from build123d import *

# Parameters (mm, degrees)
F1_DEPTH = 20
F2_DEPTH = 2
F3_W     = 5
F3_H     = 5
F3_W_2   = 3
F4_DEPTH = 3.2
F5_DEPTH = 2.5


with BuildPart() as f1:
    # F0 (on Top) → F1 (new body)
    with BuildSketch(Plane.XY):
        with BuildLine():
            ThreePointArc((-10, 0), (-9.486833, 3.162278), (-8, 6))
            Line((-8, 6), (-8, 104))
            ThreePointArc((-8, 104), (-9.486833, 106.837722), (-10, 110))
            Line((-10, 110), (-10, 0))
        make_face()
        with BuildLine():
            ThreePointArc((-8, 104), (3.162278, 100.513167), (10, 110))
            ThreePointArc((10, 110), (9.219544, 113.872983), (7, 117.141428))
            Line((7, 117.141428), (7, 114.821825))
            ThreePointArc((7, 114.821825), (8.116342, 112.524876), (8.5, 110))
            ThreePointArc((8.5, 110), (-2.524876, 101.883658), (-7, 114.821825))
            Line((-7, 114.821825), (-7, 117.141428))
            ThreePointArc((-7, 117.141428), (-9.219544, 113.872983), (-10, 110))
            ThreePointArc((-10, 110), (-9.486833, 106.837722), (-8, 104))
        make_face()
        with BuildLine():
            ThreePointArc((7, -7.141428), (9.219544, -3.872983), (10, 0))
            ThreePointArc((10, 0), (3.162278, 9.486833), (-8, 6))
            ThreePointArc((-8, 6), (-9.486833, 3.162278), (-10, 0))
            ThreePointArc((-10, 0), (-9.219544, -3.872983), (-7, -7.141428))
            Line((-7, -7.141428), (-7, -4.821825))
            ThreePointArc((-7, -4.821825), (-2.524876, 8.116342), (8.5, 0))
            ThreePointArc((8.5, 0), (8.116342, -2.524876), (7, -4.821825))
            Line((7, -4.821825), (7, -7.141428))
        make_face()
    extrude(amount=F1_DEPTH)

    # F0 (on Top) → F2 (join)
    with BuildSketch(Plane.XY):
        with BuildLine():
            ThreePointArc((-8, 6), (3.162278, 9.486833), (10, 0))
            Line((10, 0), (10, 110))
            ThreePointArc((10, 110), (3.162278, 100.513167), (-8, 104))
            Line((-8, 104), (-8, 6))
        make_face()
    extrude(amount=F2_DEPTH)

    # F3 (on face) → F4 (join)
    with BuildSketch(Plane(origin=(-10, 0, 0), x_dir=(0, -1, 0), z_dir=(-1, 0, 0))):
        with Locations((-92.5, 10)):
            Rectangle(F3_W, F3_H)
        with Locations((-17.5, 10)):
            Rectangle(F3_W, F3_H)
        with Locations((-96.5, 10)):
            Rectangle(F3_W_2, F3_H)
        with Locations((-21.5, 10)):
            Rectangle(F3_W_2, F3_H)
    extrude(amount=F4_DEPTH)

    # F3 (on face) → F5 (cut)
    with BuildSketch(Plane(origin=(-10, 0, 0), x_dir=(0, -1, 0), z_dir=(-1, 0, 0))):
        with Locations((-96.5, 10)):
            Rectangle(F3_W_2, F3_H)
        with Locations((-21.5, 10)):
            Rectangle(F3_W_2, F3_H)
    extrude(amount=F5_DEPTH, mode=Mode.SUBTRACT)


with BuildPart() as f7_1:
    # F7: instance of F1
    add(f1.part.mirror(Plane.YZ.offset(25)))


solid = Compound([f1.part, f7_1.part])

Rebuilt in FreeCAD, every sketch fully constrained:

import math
import FreeCAD as App
import Part
import Sketcher
Q = App.Units.Quantity

doc = App.newDocument("Part")
params = doc.addObject("Spreadsheet::Sheet", "Params")
for row, (alias, value) in enumerate([
    ("sketch1_radius", "10 mm"),
    ("sketch1_radius2", "8.5 mm"),
    ("sketch1_height", "98 mm"),
    ("sketch1_height2", "110 mm"),
    ("pad1_length", "20 mm"),
    ("sketch2_radius", "10 mm"),
    ("sketch2_height", "110 mm"),
    ("sketch2_height2", "98 mm"),
    ("pad2_length", "2 mm"),
    ("sketch3_width", "8 mm"),
    ("sketch3_height", "5 mm"),
    ("pad3_length", "3.2 mm"),
    ("sketch4_width", "3 mm"),
    ("sketch4_height", "5 mm"),
    ("pocket1_length", "2.5 mm"),
], start=1):
    params.set(f"A{row}", alias)
    params.set(f"B{row}", "=" + value)
    params.setAlias(f"B{row}", alias)

body = doc.addObject("PartDesign::Body", "Body")

sketch1 = doc.addObject("Sketcher::SketchObject", "Sketch")
body.addObject(sketch1)
sketch1.AttachmentSupport = (doc.XY_Plane, [""])
sketch1.MapMode = "FlatFace"
sketch1.addGeometry([
    Part.LineSegment(App.Vector(-8, 6, 0), App.Vector(-8, 104, 0)),
    Part.ArcOfCircle(Part.Circle(App.Vector(0, 110, 0), App.Vector(0, 0, 1), 10), math.radians(-143), math.radians(0)),
    Part.ArcOfCircle(Part.Circle(App.Vector(0, 110, 0), App.Vector(0, 0, 1), 10), math.radians(0), math.radians(46)),
    Part.LineSegment(App.Vector(7, 117.1, 0), App.Vector(7, 114.8, 0)),
    Part.ArcOfCircle(Part.Circle(App.Vector(0, 110, 0), App.Vector(0, 0, 1), 8.5), math.radians(0), math.radians(35)),
    Part.ArcOfCircle(Part.Circle(App.Vector(0, 110, 0), App.Vector(0, 0, 1), 8.5), math.radians(145), math.radians(360)),
    Part.LineSegment(App.Vector(-7, 114.8, 0), App.Vector(-7, 117.1, 0)),
    Part.ArcOfCircle(Part.Circle(App.Vector(0, 110, 0), App.Vector(0, 0, 1), 10), math.radians(134), math.radians(180)),
    Part.LineSegment(App.Vector(-10, 110, 0), App.Vector(-10, 0, 0)),
    Part.ArcOfCircle(Part.Circle(App.Vector(0, 0, 0), App.Vector(0, 0, 1), 10), math.radians(-180), math.radians(-134)),
    Part.LineSegment(App.Vector(-7, -7.1, 0), App.Vector(-7, -4.8, 0)),
    Part.ArcOfCircle(Part.Circle(App.Vector(0, 0, 0), App.Vector(0, 0, 1), 8.5), math.radians(0), math.radians(215)),
    Part.ArcOfCircle(Part.Circle(App.Vector(0, 0, 0), App.Vector(0, 0, 1), 8.5), math.radians(-35), math.radians(0)),
    Part.LineSegment(App.Vector(7, -4.8, 0), App.Vector(7, -7.1, 0)),
    Part.ArcOfCircle(Part.Circle(App.Vector(0, 0, 0), App.Vector(0, 0, 1), 10), math.radians(-46), math.radians(0)),
    Part.ArcOfCircle(Part.Circle(App.Vector(0, 0, 0), App.Vector(0, 0, 1), 10), math.radians(0), math.radians(143)),
], False)
sketch1.addConstraint([
    Sketcher.Constraint("Coincident", 0, 2, 1, 1),
    Sketcher.Constraint("Tangent", 1, 2, 2, 1),
    Sketcher.Constraint("Coincident", 2, 2, 3, 1),
    Sketcher.Constraint("Coincident", 3, 2, 4, 2),
    Sketcher.Constraint("Tangent", 4, 1, 5, 2),
    Sketcher.Constraint("Coincident", 5, 1, 6, 1),
    Sketcher.Constraint("Coincident", 6, 2, 7, 1),
    Sketcher.Constraint("Tangent", 7, 2, 8, 1),
    Sketcher.Constraint("Tangent", 8, 2, 9, 1),
    Sketcher.Constraint("Coincident", 9, 2, 10, 1),
    Sketcher.Constraint("Coincident", 10, 2, 11, 2),
    Sketcher.Constraint("Tangent", 11, 1, 12, 2),
    Sketcher.Constraint("Coincident", 12, 1, 13, 1),
    Sketcher.Constraint("Coincident", 13, 2, 14, 1),
    Sketcher.Constraint("Tangent", 14, 2, 15, 1),
    Sketcher.Constraint("Coincident", 15, 2, 0, 1),
    Sketcher.Constraint("Vertical", 0),
    Sketcher.Constraint("Vertical", 3),
    Sketcher.Constraint("Vertical", 6),
    Sketcher.Constraint("Vertical", 8),
    Sketcher.Constraint("Vertical", 10),
    Sketcher.Constraint("Vertical", 13),
    Sketcher.Constraint("Coincident", 9, 3, -1, 1),
    Sketcher.Constraint("Coincident", 11, 3, -1, 1),
    Sketcher.Constraint("Coincident", 14, 3, -1, 1),
    Sketcher.Constraint("Coincident", 5, 3, 1, 3),
    Sketcher.Constraint("Coincident", 7, 3, 1, 3),
    Sketcher.Constraint("Equal", 2, 7),
    Sketcher.Constraint("Equal", 7, 9),
    Sketcher.Constraint("Equal", 5, 11),
    Sketcher.Constraint("Equal", 4, 12),
    Sketcher.Constraint("Equal", 9, 14),
    Sketcher.Constraint("Equal", 1, 15),
    Sketcher.Constraint("Symmetric", 3, 2, 5, 1, -2),
    Sketcher.Constraint("Symmetric", 1, 2, 7, 2, -2),
    Sketcher.Constraint("PointOnObject", 11, 1, -1),
    Sketcher.Constraint("PointOnObject", 14, 2, -1),
    Sketcher.Constraint("Horizontal", 1, 2, 4, 1),
    Sketcher.Constraint("Horizontal", 10, 2, 12, 1),
    Sketcher.Constraint("Vertical", 6, 2, 9, 2),
    Sketcher.Constraint("Radius", 1, Q("10 mm")),
    Sketcher.Constraint("Radius", 5, Q("8.5 mm")),
    Sketcher.Constraint("DistanceY", 0, 1, 0, 2, Q("98 mm")),
    Sketcher.Constraint("DistanceY", 8, 2, 8, 1, Q("110 mm")),
    Sketcher.Constraint("DistanceX", -1, 1, 2, 2, Q("7 mm")),
])
sketch1.setExpression("Constraints[40]", "Params.sketch1_radius")
sketch1.setExpression("Constraints[41]", "Params.sketch1_radius2")
sketch1.setExpression("Constraints[42]", "Params.sketch1_height")
sketch1.setExpression("Constraints[43]", "Params.sketch1_height2")
pad1 = doc.addObject("PartDesign::Pad", "Pad")
body.addObject(pad1)
pad1.Profile = sketch1
pad1.setExpression("Length", "Params.pad1_length")

sketch2 = doc.addObject("Sketcher::SketchObject", "Sketch001")
body.addObject(sketch2)
sketch2.AttachmentSupport = (doc.XY_Plane, [""])
sketch2.MapMode = "FlatFace"
sketch2.addGeometry([
    Part.ArcOfCircle(Part.Circle(App.Vector(0, 0, 0), App.Vector(0, 0, 1), 10), math.radians(0), math.radians(143)),
    Part.LineSegment(App.Vector(10, 0, 0), App.Vector(10, 110, 0)),
    Part.ArcOfCircle(Part.Circle(App.Vector(0, 110, 0), App.Vector(0, 0, 1), 10), math.radians(-143), math.radians(0)),
    Part.LineSegment(App.Vector(-8, 104, 0), App.Vector(-8, 6, 0)),
], False)
sketch2.addConstraint([
    Sketcher.Constraint("Tangent", 0, 1, 1, 1),
    Sketcher.Constraint("Tangent", 1, 2, 2, 2),
    Sketcher.Constraint("Coincident", 2, 1, 3, 1),
    Sketcher.Constraint("Coincident", 3, 2, 0, 2),
    Sketcher.Constraint("Vertical", 1),
    Sketcher.Constraint("Vertical", 3),
    Sketcher.Constraint("Coincident", 0, 3, -1, 1),
    Sketcher.Constraint("Equal", 0, 2),
    Sketcher.Constraint("Radius", 0, Q("10 mm")),
    Sketcher.Constraint("DistanceY", 1, 1, 1, 2, Q("110 mm")),
    Sketcher.Constraint("DistanceY", 3, 2, 3, 1, Q("98 mm")),
])
sketch2.setExpression("Constraints[8]", "Params.sketch2_radius")
sketch2.setExpression("Constraints[9]", "Params.sketch2_height")
sketch2.setExpression("Constraints[10]", "Params.sketch2_height2")
pad2 = doc.addObject("PartDesign::Pad", "Pad001")
body.addObject(pad2)
pad2.Profile = sketch2
pad2.setExpression("Length", "Params.pad2_length")

sketch3 = doc.addObject("Sketcher::SketchObject", "Sketch002")
body.addObject(sketch3)
sketch3.AttachmentSupport = (doc.YZ_Plane, [""])
sketch3.MapMode = "FlatFace"
sketch3.AttachmentOffset = App.Placement(App.Vector(0, 0, -10), App.Rotation())
sketch3.addGeometry([
    Part.LineSegment(App.Vector(90, 8, 0), App.Vector(90, 12, 0)),
    Part.LineSegment(App.Vector(90, 12, 0), App.Vector(98, 12, 0)),
    Part.LineSegment(App.Vector(98, 12, 0), App.Vector(98, 8, 0)),
    Part.LineSegment(App.Vector(98, 8, 0), App.Vector(90, 8, 0)),
    Part.LineSegment(App.Vector(15, 8, 0), App.Vector(15, 12, 0)),
    Part.LineSegment(App.Vector(15, 12, 0), App.Vector(23, 12, 0)),
    Part.LineSegment(App.Vector(23, 12, 0), App.Vector(23, 8, 0)),
    Part.LineSegment(App.Vector(23, 8, 0), App.Vector(15, 8, 0)),
], False)
sketch3.addConstraint([
    Sketcher.Constraint("Coincident", 0, 2, 1, 1),
    Sketcher.Constraint("Coincident", 1, 2, 2, 1),
    Sketcher.Constraint("Coincident", 2, 2, 3, 1),
    Sketcher.Constraint("Coincident", 3, 2, 0, 1),
    Sketcher.Constraint("Coincident", 4, 2, 5, 1),
    Sketcher.Constraint("Coincident", 5, 2, 6, 1),
    Sketcher.Constraint("Coincident", 6, 2, 7, 1),
    Sketcher.Constraint("Coincident", 7, 2, 4, 1),
    Sketcher.Constraint("Vertical", 0),
    Sketcher.Constraint("Horizontal", 1),
    Sketcher.Constraint("Vertical", 2),
    Sketcher.Constraint("Horizontal", 3),
    Sketcher.Constraint("Vertical", 4),
    Sketcher.Constraint("Horizontal", 5),
    Sketcher.Constraint("Vertical", 6),
    Sketcher.Constraint("Horizontal", 7),
    Sketcher.Constraint("Horizontal", 1, 2, 4, 2),
    Sketcher.Constraint("Horizontal", 3, 2, 6, 2),
    Sketcher.Constraint("Equal", 3, 5),
    Sketcher.Constraint("DistanceX", 1, 1, 1, 2, Q("8 mm")),
    Sketcher.Constraint("DistanceY", 0, 1, 0, 2, Q("5 mm")),
    Sketcher.Constraint("DistanceX", -1, 1, 0, 2, Q("90 mm")),
    Sketcher.Constraint("DistanceX", -1, 1, 4, 2, Q("15 mm")),
    Sketcher.Constraint("DistanceY", -1, 1, 0, 2, Q("12.5 mm")),
])
sketch3.setExpression("Constraints[19]", "Params.sketch3_width")
sketch3.setExpression("Constraints[20]", "Params.sketch3_height")
pad3 = doc.addObject("PartDesign::Pad", "Pad002")
body.addObject(pad3)
pad3.Profile = sketch3
pad3.setExpression("Length", "Params.pad3_length")
pad3.Reversed = True

sketch4 = doc.addObject("Sketcher::SketchObject", "Sketch003")
body.addObject(sketch4)
sketch4.AttachmentSupport = (doc.YZ_Plane, [""])
sketch4.MapMode = "FlatFace"
sketch4.AttachmentOffset = App.Placement(App.Vector(0, 0, -10), App.Rotation())
sketch4.addGeometry([
    Part.LineSegment(App.Vector(98, 12.5, 0), App.Vector(98, 7.5, 0)),
    Part.LineSegment(App.Vector(98, 7.5, 0), App.Vector(95, 7.5, 0)),
    Part.LineSegment(App.Vector(95, 7.5, 0), App.Vector(95, 12.5, 0)),
    Part.LineSegment(App.Vector(95, 12.5, 0), App.Vector(98, 12.5, 0)),
    Part.LineSegment(App.Vector(23, 12.5, 0), App.Vector(23, 7.5, 0)),
    Part.LineSegment(App.Vector(23, 7.5, 0), App.Vector(20, 7.5, 0)),
    Part.LineSegment(App.Vector(20, 7.5, 0), App.Vector(20, 12.5, 0)),
    Part.LineSegment(App.Vector(20, 12.5, 0), App.Vector(23, 12.5, 0)),
], False)
sketch4.addConstraint([
    Sketcher.Constraint("Coincident", 0, 2, 1, 1),
    Sketcher.Constraint("Coincident", 1, 2, 2, 1),
    Sketcher.Constraint("Coincident", 2, 2, 3, 1),
    Sketcher.Constraint("Coincident", 3, 2, 0, 1),
    Sketcher.Constraint("Coincident", 4, 2, 5, 1),
    Sketcher.Constraint("Coincident", 5, 2, 6, 1),
    Sketcher.Constraint("Coincident", 6, 2, 7, 1),
    Sketcher.Constraint("Coincident", 7, 2, 4, 1),
    Sketcher.Constraint("Vertical", 0),
    Sketcher.Constraint("Horizontal", 1),
    Sketcher.Constraint("Vertical", 2),
    Sketcher.Constraint("Horizontal", 3),
    Sketcher.Constraint("Vertical", 4),
    Sketcher.Constraint("Horizontal", 5),
    Sketcher.Constraint("Vertical", 6),
    Sketcher.Constraint("Horizontal", 7),
    Sketcher.Constraint("Horizontal", 1, 2, 4, 2),
    Sketcher.Constraint("Horizontal", 3, 2, 6, 2),
    Sketcher.Constraint("Equal", 3, 5),
    Sketcher.Constraint("DistanceX", 1, 2, 1, 1, Q("3 mm")),
    Sketcher.Constraint("DistanceY", 0, 2, 0, 1, Q("5 mm")),
    Sketcher.Constraint("DistanceX", -1, 1, 0, 2, Q("98 mm")),
    Sketcher.Constraint("DistanceX", -1, 1, 4, 2, Q("23 mm")),
    Sketcher.Constraint("DistanceY", -1, 1, 0, 2, Q("7.5 mm")),
])
sketch4.setExpression("Constraints[19]", "Params.sketch4_width")
sketch4.setExpression("Constraints[20]", "Params.sketch4_height")
pocket1 = doc.addObject("PartDesign::Pocket", "Pocket")
body.addObject(pocket1)
pocket1.Profile = sketch4
pocket1.setExpression("Length", "Params.pocket1_length")
body2 = doc.addObject("PartDesign::Body", "Body001")
doc.recompute()

mirroring = doc.addObject("Part::Mirroring", "Mirroring")
mirroring.Source = body
mirroring.Base = App.Vector(25, 0, 0)
mirroring.Normal = App.Vector(1, 0, 0)
body2.BaseFeature = mirroring
doc.recompute()
mirroring.Visibility = False

doc.recompute()
